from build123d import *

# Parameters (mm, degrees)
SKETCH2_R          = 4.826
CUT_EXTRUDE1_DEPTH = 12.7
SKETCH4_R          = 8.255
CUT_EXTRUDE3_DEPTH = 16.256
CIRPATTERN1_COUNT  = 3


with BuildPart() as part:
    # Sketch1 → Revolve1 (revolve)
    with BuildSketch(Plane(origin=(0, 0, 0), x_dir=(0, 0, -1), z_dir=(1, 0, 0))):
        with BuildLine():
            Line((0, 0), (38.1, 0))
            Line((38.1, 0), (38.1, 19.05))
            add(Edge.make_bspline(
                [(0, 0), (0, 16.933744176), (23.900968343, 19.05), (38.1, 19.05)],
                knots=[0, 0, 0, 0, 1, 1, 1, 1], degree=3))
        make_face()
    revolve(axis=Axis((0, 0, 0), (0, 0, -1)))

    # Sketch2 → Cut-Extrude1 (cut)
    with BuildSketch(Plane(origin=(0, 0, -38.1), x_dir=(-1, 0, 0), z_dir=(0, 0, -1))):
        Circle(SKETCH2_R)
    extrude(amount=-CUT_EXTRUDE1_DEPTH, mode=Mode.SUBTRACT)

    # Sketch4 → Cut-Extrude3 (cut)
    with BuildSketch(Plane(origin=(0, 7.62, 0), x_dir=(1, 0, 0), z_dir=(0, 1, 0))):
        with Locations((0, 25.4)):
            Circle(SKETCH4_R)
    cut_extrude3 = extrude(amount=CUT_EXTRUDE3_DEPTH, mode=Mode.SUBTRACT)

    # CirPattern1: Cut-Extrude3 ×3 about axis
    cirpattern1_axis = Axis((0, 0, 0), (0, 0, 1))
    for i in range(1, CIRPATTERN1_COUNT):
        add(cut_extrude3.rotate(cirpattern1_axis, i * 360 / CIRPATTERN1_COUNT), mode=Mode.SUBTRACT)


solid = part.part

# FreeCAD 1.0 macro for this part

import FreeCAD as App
import Part
import Sketcher
from FreeCAD import Vector
Q = App.Units.Quantity

doc = App.newDocument("Part")
body = doc.addObject("PartDesign::Body", "Body")

sketch1 = body.newObject("Sketcher::SketchObject", "Sketch")
sketch1.AttachmentSupport = (doc.getObject("YZ_Plane"), [""])
sketch1.MapMode = "FlatFace"
sketch1.addGeometry([
    Part.LineSegment(Vector(0, 0, 0), Vector(0, -38.1, 0)),
    Part.LineSegment(Vector(0, -38.1, 0), Vector(19.05, -38.1, 0)),
    Part.BSplineCurve([Vector(0, 0, 0), Vector(16.933744, 0, 0), Vector(19.05, -23.900968, 0), Vector(19.05, -38.1, 0)], [4, 4], [0, 1], False, 3, [1, 1, 1, 1], False),
], False)
sketch1.addConstraint([
    Sketcher.Constraint("Block", 2),
    Sketcher.Constraint("Coincident", 0, 2, 1, 1),
    Sketcher.Constraint("Coincident", 1, 2, 2, 2),
    Sketcher.Constraint("Coincident", 2, 1, 0, 1),
    Sketcher.Constraint("Vertical", 0),
    Sketcher.Constraint("Horizontal", 1),
])
revolution = body.newObject("PartDesign::Revolution", "Revolution")
revolution.Profile = sketch1
revolution.ReferenceAxis = (sketch1, ["V_Axis"])
revolution.Angle = 360

sketch2 = body.newObject("Sketcher::SketchObject", "Sketch001")
sketch2.AttachmentSupport = (doc.getObject("XY_Plane"), [""])
sketch2.MapMode = "FlatFace"
sketch2.AttachmentOffset = App.Placement(Vector(0, 0, -1.5 * 25.4), App.Rotation())
sketch2.addGeometry(Part.Circle(Vector(0, 0, 0), Vector(0, 0, 1), 4.8), False)
sketch2.addConstraint([
    Sketcher.Constraint("Coincident", 0, 3, -1, 1),
    Sketcher.Constraint("Diameter", 0, Q("0.38 in")),
])
pocket1 = body.newObject("PartDesign::Pocket", "Pocket")
pocket1.Profile = sketch2
pocket1.Length = Q("0.5 in")
pocket1.Reversed = True

sketch3 = body.newObject("Sketcher::SketchObject", "Sketch002")
sketch3.AttachmentSupport = (doc.getObject("XZ_Plane"), [""])
sketch3.MapMode = "FlatFace"
sketch3.AttachmentOffset = App.Placement(Vector(0, 0, -0.3 * 25.4), App.Rotation())
sketch3.addGeometry(Part.Circle(Vector(0, -25, 0), Vector(0, 0, 1), 8), False)
sketch3.addConstraint([
    Sketcher.Constraint("PointOnObject", 0, 3, -2),
    Sketcher.Constraint("Diameter", 0, Q("0.65 in")),
    Sketcher.Constraint("DistanceY", 0, 3, -1, 1, Q("1 in")),
])
pocket2 = body.newObject("PartDesign::Pocket", "Pocket001")
pocket2.Profile = sketch3
pocket2.Length = Q("0.64 in")
doc.recompute()

polarpattern = body.newObject("PartDesign::PolarPattern", "PolarPattern")
polarpattern.Originals = [pocket2]
polarpattern.Axis = (doc.getObject("Z_Axis"), [""])
polarpattern.Angle = 360
polarpattern.Occurrences = 3
body.Tip = polarpattern

doc.recompute()
